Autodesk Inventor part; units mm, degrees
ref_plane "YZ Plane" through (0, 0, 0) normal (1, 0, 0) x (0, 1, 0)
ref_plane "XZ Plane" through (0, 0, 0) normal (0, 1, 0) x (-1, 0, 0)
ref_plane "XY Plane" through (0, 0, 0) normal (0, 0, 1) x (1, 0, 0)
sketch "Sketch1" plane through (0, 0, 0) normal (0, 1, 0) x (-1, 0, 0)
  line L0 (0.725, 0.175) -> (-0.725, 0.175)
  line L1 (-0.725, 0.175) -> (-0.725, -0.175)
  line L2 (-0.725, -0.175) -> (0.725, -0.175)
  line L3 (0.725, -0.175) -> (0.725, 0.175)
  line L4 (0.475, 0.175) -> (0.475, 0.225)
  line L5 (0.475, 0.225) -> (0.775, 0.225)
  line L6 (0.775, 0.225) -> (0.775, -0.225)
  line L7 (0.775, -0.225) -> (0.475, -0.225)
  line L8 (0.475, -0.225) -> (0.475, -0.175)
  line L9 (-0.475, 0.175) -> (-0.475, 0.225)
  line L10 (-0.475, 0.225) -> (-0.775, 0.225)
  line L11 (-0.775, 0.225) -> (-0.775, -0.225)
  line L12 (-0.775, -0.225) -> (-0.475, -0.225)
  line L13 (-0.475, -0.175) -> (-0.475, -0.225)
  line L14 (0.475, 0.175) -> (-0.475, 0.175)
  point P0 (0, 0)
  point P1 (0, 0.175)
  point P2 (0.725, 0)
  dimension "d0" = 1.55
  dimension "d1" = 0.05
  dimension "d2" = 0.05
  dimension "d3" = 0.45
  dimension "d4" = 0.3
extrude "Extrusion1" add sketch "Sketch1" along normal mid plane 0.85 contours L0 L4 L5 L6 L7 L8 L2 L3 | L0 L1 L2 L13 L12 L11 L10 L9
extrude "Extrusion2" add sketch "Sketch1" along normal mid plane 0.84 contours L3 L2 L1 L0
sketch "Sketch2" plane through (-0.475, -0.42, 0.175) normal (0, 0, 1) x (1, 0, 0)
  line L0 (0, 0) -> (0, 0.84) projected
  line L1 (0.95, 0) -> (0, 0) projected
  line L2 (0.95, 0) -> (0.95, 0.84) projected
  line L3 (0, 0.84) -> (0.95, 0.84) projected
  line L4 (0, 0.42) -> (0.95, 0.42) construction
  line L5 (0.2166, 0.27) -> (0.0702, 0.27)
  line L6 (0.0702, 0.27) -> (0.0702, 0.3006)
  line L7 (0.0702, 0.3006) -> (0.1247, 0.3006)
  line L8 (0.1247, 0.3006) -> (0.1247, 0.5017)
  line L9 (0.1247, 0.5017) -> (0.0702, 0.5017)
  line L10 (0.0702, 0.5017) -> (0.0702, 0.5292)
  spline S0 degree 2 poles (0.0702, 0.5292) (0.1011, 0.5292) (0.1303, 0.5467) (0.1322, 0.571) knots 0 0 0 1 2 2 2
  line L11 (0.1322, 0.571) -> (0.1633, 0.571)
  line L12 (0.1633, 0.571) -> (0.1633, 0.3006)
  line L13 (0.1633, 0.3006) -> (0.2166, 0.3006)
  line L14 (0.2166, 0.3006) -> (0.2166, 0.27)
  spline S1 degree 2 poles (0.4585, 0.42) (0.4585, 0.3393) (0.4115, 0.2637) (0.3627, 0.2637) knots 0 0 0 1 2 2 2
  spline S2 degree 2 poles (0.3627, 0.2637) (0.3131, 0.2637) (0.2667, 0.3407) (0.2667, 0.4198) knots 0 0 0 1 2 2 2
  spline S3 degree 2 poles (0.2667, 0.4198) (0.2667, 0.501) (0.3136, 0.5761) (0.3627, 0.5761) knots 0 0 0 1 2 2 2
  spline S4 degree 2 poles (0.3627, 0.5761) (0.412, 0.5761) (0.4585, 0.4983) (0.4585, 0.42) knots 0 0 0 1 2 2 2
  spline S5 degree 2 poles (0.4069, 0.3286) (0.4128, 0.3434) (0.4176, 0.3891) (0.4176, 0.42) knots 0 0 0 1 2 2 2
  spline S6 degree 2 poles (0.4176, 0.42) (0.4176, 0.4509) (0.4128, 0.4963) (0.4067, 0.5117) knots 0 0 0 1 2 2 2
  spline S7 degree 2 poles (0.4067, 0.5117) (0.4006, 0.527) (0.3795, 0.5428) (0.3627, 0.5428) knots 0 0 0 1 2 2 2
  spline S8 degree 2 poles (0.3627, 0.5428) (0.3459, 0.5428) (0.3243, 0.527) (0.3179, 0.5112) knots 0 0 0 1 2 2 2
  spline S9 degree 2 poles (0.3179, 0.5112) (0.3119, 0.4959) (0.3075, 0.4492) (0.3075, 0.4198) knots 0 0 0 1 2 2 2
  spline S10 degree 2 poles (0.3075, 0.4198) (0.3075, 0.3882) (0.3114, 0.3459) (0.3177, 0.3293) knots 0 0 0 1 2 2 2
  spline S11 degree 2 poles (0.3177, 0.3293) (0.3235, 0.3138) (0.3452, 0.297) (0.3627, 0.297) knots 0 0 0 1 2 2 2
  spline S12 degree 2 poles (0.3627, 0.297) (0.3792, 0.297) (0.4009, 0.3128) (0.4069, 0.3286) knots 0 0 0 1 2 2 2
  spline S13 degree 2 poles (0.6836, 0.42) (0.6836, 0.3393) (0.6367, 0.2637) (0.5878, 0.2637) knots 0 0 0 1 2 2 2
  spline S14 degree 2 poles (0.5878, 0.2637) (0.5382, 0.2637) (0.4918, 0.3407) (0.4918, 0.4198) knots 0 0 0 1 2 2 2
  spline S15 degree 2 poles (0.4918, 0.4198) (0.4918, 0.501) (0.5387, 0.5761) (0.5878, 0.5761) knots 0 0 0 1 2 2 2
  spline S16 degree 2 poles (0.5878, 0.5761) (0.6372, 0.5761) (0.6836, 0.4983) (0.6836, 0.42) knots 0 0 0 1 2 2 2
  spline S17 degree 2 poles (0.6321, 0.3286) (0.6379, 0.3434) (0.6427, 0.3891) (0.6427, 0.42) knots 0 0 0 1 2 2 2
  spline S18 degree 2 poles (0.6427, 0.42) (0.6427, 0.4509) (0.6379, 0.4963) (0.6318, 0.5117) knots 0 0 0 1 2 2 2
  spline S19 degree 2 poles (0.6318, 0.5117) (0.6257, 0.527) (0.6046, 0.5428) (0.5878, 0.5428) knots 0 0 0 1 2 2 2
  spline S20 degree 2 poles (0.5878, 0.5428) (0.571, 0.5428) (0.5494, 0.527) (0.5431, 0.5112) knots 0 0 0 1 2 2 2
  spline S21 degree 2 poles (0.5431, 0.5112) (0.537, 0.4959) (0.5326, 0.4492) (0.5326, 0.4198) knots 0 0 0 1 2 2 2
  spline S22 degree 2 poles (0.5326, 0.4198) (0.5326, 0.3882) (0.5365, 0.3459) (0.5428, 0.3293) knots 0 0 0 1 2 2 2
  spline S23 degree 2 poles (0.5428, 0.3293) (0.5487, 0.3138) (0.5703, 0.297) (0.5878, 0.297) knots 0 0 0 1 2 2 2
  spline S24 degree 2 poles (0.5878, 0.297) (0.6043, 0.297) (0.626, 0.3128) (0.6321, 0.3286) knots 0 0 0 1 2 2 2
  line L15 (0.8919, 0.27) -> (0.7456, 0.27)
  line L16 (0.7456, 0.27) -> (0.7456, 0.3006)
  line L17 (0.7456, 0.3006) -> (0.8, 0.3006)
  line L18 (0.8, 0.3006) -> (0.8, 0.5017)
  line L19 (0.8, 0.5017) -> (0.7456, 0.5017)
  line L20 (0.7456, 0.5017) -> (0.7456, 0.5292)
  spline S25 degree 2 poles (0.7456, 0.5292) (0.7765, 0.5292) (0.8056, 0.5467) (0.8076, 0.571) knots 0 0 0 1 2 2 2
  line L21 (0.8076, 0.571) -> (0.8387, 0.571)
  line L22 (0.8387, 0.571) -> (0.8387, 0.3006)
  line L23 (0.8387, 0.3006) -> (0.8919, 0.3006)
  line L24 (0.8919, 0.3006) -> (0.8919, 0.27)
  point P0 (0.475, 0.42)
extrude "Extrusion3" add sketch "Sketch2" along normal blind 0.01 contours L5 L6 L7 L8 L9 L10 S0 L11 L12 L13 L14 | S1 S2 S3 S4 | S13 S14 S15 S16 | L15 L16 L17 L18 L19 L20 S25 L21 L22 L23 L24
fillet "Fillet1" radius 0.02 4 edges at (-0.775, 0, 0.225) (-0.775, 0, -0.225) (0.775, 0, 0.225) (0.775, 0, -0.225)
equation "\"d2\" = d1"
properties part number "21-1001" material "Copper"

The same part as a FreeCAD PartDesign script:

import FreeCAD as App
import Part
import Sketcher

V = App.Vector
Q = App.Units.Quantity


def edges_at(feature, points):
    """Names of the edges that pass closest to the given points."""
    edges = feature.Shape.Edges
    near = lambda p: min(range(len(edges)), key=lambda i: edges[i].distToShape(Part.Vertex(*p))[0])
    return sorted({f"Edge{near(p) + 1}" for p in points})


def add_polygon(sketch, points):
    """Adds a closed chain of lines whose ends are joined by coincident constraints."""
    first, n = sketch.GeometryCount, len(points)
    for a, b in zip(points, points[1:] + points[:1]):
        sketch.addGeometry(Part.LineSegment(App.Vector(*a, 0), App.Vector(*b, 0)), False)
    for i in range(n):
        sketch.addConstraint(Sketcher.Constraint("Coincident", first + i, 2, first + (i + 1) % n, 1))

doc = App.newDocument("Part")
body = doc.addObject("PartDesign::Body", "Body")
body.AllowCompound = True

sketch1 = body.newObject("Sketcher::SketchObject", "Sketch")
sketch1.AttachmentSupport = (doc.getObject("XZ_Plane"), [""])
sketch1.MapMode = "FlatFace"
add_polygon(sketch1, [(-0.47, 0.17), (-0.72, 0.17), (-0.72, -0.17), (-0.47, -0.17), (-0.47, -0.23), (-0.78, -0.23), (-0.78, 0.23), (-0.47, 0.23)])
add_polygon(sketch1, [(0.72, 0.17), (0.47, 0.17), (0.47, 0.23), (0.78, 0.23), (0.78, -0.23), (0.47, -0.23), (0.47, -0.17), (0.72, -0.17)])
sketch1.addConstraint(Sketcher.Constraint("Horizontal", 0))
sketch1.addConstraint(Sketcher.Constraint("Vertical", 1))
sketch1.addConstraint(Sketcher.Constraint("Horizontal", 2))
sketch1.addConstraint(Sketcher.Constraint("Vertical", 3))
sketch1.addConstraint(Sketcher.Constraint("Horizontal", 4))
sketch1.addConstraint(Sketcher.Constraint("Vertical", 5))
sketch1.addConstraint(Sketcher.Constraint("Horizontal", 6))
sketch1.addConstraint(Sketcher.Constraint("Vertical", 7))
sketch1.addConstraint(Sketcher.Constraint("Horizontal", 8))
sketch1.addConstraint(Sketcher.Constraint("Vertical", 9))
sketch1.addConstraint(Sketcher.Constraint("Horizontal", 10))
sketch1.addConstraint(Sketcher.Constraint("Vertical", 11))
sketch1.addConstraint(Sketcher.Constraint("Horizontal", 12))
sketch1.addConstraint(Sketcher.Constraint("Vertical", 13))
sketch1.addConstraint(Sketcher.Constraint("Horizontal", 14))
sketch1.addConstraint(Sketcher.Constraint("Vertical", 15))
sketch1.addConstraint(Sketcher.Constraint("Symmetric", 2, 2, 8, 2, -1, 1))
sketch1.addConstraint(Sketcher.Constraint("Symmetric", 4, 2, 10, 2, -1, 1))
sketch1.addConstraint(Sketcher.Constraint("Symmetric", 6, 2, 12, 2, -1, 1))
sketch1.addConstraint(Sketcher.Constraint("Symmetric", 0, 2, 14, 2, -1, 1))
sketch1.addConstraint(Sketcher.Constraint("Symmetric", 7, 2, 8, 2, -2))
sketch1.addConstraint(Sketcher.Constraint("Horizontal", 6, 2, 9, 2))
sketch1.addConstraint(Sketcher.Constraint("DistanceX", 4, 2, 4, 1, Q("0.3 mm")))
sketch1.addConstraint(Sketcher.Constraint("DistanceY", 3, 2, 3, 1, Q("0.05 mm")))
sketch1.addConstraint(Sketcher.Constraint("DistanceY", 5, 1, 5, 2, Q("0.45 mm")))
sketch1.addConstraint(Sketcher.Constraint("DistanceX", 4, 2, 1, 2, Q("0.05 mm")))
sketch1.addConstraint(Sketcher.Constraint("DistanceX", 0, 2, 8, 2, Q("1.2 mm")))
pad1 = body.newObject("PartDesign::Pad", "Pad")
pad1.Profile = sketch1
pad1.Length = 0.85
pad1.Midplane = True

sketch2 = body.newObject("Sketcher::SketchObject", "Sketch001")
sketch2.AttachmentSupport = (doc.getObject("XZ_Plane"), [""])
sketch2.MapMode = "FlatFace"
add_polygon(sketch2, [(-0.72, -0.17), (-0.72, 0.17), (0.72, 0.17), (0.72, -0.17)])
sketch2.addConstraint(Sketcher.Constraint("Vertical", 0))
sketch2.addConstraint(Sketcher.Constraint("Horizontal", 1))
sketch2.addConstraint(Sketcher.Constraint("Vertical", 2))
sketch2.addConstraint(Sketcher.Constraint("Horizontal", 3))
sketch2.addConstraint(Sketcher.Constraint("Symmetric", 0, 2, 2, 2, -1, 1))
sketch2.addConstraint(Sketcher.Constraint("DistanceX", 1, 1, 1, 2, Q("1.45 mm")))
sketch2.addConstraint(Sketcher.Constraint("DistanceY", 0, 1, 0, 2, Q("0.35 mm")))
pad2 = body.newObject("PartDesign::Pad", "Pad001")
pad2.Profile = sketch2
pad2.Length = 0.84
pad2.Midplane = True

sketch3 = body.newObject("Sketcher::SketchObject", "Sketch002")
sketch3.AttachmentSupport = (doc.getObject("XY_Plane"), [""])
sketch3.MapMode = "FlatFace"
sketch3.AttachmentOffset = App.Placement(V(0, 0, 0.175), App.Rotation())
sketch3.addGeometry(Part.LineSegment(V(-0.4048, -0.15, 0), V(-0.2584, -0.15, 0)), False)
sketch3.addGeometry(Part.LineSegment(V(-0.2584, -0.15, 0), V(-0.2584, -0.1194, 0)), False)
sketch3.addGeometry(Part.LineSegment(V(-0.2584, -0.1194, 0), V(-0.3117, -0.1194, 0)), False)
sketch3.addGeometry(Part.LineSegment(V(-0.3117, -0.1194, 0), V(-0.3117, 0.151, 0)), False)
sketch3.addGeometry(Part.LineSegment(V(-0.3117, 0.151, 0), V(-0.3428, 0.151, 0)), False)
sketch3.addGeometry(Part.BSplineCurve([V(-0.4048, 0.1092, 0), V(-0.3739, 0.1092, 0), V(-0.3447, 0.1267, 0), V(-0.3428, 0.151, 0)], [3, 1, 3], [0, 1, 2], False, 2, [1, 1, 1, 1], False), False)
sketch3.addGeometry(Part.LineSegment(V(-0.4048, 0.1092, 0), V(-0.4048, 0.0817, 0)), False)
sketch3.addGeometry(Part.LineSegment(V(-0.4048, 0.0817, 0), V(-0.3503, 0.0817, 0)), False)
sketch3.addGeometry(Part.LineSegment(V(-0.3503, 0.0817, 0), V(-0.3503, -0.1194, 0)), False)
sketch3.addGeometry(Part.LineSegment(V(-0.3503, -0.1194, 0), V(-0.4048, -0.1194, 0)), False)
sketch3.addGeometry(Part.LineSegment(V(-0.4048, -0.1194, 0), V(-0.4048, -0.15, 0)), False)
sketch3.addGeometry(Part.BSplineCurve([V(-0.0165, 0, 0), V(-0.0165, -0.0807, 0), V(-0.0635, -0.1563, 0), V(-0.1123, -0.1563, 0)], [3, 1, 3], [0, 1, 2], False, 2, [1, 1, 1, 1], False), False)
sketch3.addGeometry(Part.BSplineCurve([V(-0.1123, 0.1561, 0), V(-0.063, 0.1561, 0), V(-0.0165, 0.0783, 0), V(-0.0165, 0, 0)], [3, 1, 3], [0, 1, 2], False, 2, [1, 1, 1, 1], False), False)
sketch3.addGeometry(Part.BSplineCurve([V(-0.2083, -0.0002, 0), V(-0.2083, 0.081, 0), V(-0.1614, 0.1561, 0), V(-0.1123, 0.1561, 0)], [3, 1, 3], [0, 1, 2], False, 2, [1, 1, 1, 1], False), False)
sketch3.addGeometry(Part.BSplineCurve([V(-0.1123, -0.1563, 0), V(-0.1619, -0.1563, 0), V(-0.2083, -0.0793, 0), V(-0.2083, -0.0002, 0)], [3, 1, 3], [0, 1, 2], False, 2, [1, 1, 1, 1], False), False)
sketch3.addGeometry(Part.BSplineCurve([V(-0.0681, -0.0914, 0), V(-0.0622, -0.0766, 0), V(-0.0574, -0.0309, 0), V(-0.0574, 0, 0)], [3, 1, 3], [0, 1, 2], False, 2, [1, 1, 1, 1], False), False)
sketch3.addGeometry(Part.BSplineCurve([V(-0.1123, -0.123, 0), V(-0.0958, -0.123, 0), V(-0.0741, -0.1072, 0), V(-0.0681, -0.0914, 0)], [3, 1, 3], [0, 1, 2], False, 2, [1, 1, 1, 1], False), False)
sketch3.addGeometry(Part.BSplineCurve([V(-0.1573, -0.0907, 0), V(-0.1515, -0.1062, 0), V(-0.1298, -0.123, 0), V(-0.1123, -0.123, 0)], [3, 1, 3], [0, 1, 2], False, 2, [1, 1, 1, 1], False), False)
sketch3.addGeometry(Part.BSplineCurve([V(-0.1675, -0.0002, 0), V(-0.1675, -0.0318, 0), V(-0.1636, -0.0741, 0), V(-0.1573, -0.0907, 0)], [3, 1, 3], [0, 1, 2], False, 2, [1, 1, 1, 1], False), False)
sketch3.addGeometry(Part.BSplineCurve([V(-0.1571, 0.0912, 0), V(-0.1631, 0.0759, 0), V(-0.1675, 0.0292, 0), V(-0.1675, -0.0002, 0)], [3, 1, 3], [0, 1, 2], False, 2, [1, 1, 1, 1], False), False)
sketch3.addGeometry(Part.BSplineCurve([V(-0.1123, 0.1228, 0), V(-0.1291, 0.1228, 0), V(-0.1507, 0.107, 0), V(-0.1571, 0.0912, 0)], [3, 1, 3], [0, 1, 2], False, 2, [1, 1, 1, 1], False), False)
sketch3.addGeometry(Part.BSplineCurve([V(-0.0683, 0.0917, 0), V(-0.0744, 0.107, 0), V(-0.0955, 0.1228, 0), V(-0.1123, 0.1228, 0)], [3, 1, 3], [0, 1, 2], False, 2, [1, 1, 1, 1], False), False)
sketch3.addGeometry(Part.BSplineCurve([V(-0.0574, 0, 0), V(-0.0574, 0.0309, 0), V(-0.0622, 0.0763, 0), V(-0.0683, 0.0917, 0)], [3, 1, 3], [0, 1, 2], False, 2, [1, 1, 1, 1], False), False)
sketch3.addGeometry(Part.BSplineCurve([V(0.2086, 0, 0), V(0.2086, -0.0807, 0), V(0.1617, -0.1563, 0), V(0.1128, -0.1563, 0)], [3, 1, 3], [0, 1, 2], False, 2, [1, 1, 1, 1], False), False)
sketch3.addGeometry(Part.BSplineCurve([V(0.1128, 0.1561, 0), V(0.1622, 0.1561, 0), V(0.2086, 0.0783, 0), V(0.2086, 0, 0)], [3, 1, 3], [0, 1, 2], False, 2, [1, 1, 1, 1], False), False)
sketch3.addGeometry(Part.BSplineCurve([V(0.0168, -0.0002, 0), V(0.0168, 0.081, 0), V(0.0637, 0.1561, 0), V(0.1128, 0.1561, 0)], [3, 1, 3], [0, 1, 2], False, 2, [1, 1, 1, 1], False), False)
sketch3.addGeometry(Part.BSplineCurve([V(0.1128, -0.1563, 0), V(0.0632, -0.1563, 0), V(0.0168, -0.0793, 0), V(0.0168, -0.0002, 0)], [3, 1, 3], [0, 1, 2], False, 2, [1, 1, 1, 1], False), False)
sketch3.addGeometry(Part.BSplineCurve([V(0.1571, -0.0914, 0), V(0.1629, -0.0766, 0), V(0.1677, -0.0309, 0), V(0.1677, 0, 0)], [3, 1, 3], [0, 1, 2], False, 2, [1, 1, 1, 1], False), False)
sketch3.addGeometry(Part.BSplineCurve([V(0.1128, -0.123, 0), V(0.1293, -0.123, 0), V(0.151, -0.1072, 0), V(0.1571, -0.0914, 0)], [3, 1, 3], [0, 1, 2], False, 2, [1, 1, 1, 1], False), False)
sketch3.addGeometry(Part.BSplineCurve([V(0.0678, -0.0907, 0), V(0.0737, -0.1062, 0), V(0.0953, -0.123, 0), V(0.1128, -0.123, 0)], [3, 1, 3], [0, 1, 2], False, 2, [1, 1, 1, 1], False), False)
sketch3.addGeometry(Part.BSplineCurve([V(0.0576, -0.0002, 0), V(0.0576, -0.0318, 0), V(0.0615, -0.0741, 0), V(0.0678, -0.0907, 0)], [3, 1, 3], [0, 1, 2], False, 2, [1, 1, 1, 1], False), False)
sketch3.addGeometry(Part.BSplineCurve([V(0.0681, 0.0912, 0), V(0.062, 0.0759, 0), V(0.0576, 0.0292, 0), V(0.0576, -0.0002, 0)], [3, 1, 3], [0, 1, 2], False, 2, [1, 1, 1, 1], False), False)
sketch3.addGeometry(Part.BSplineCurve([V(0.1128, 0.1228, 0), V(0.096, 0.1228, 0), V(0.0744, 0.107, 0), V(0.0681, 0.0912, 0)], [3, 1, 3], [0, 1, 2], False, 2, [1, 1, 1, 1], False), False)
sketch3.addGeometry(Part.BSplineCurve([V(0.1568, 0.0917, 0), V(0.1507, 0.107, 0), V(0.1296, 0.1228, 0), V(0.1128, 0.1228, 0)], [3, 1, 3], [0, 1, 2], False, 2, [1, 1, 1, 1], False), False)
sketch3.addGeometry(Part.BSplineCurve([V(0.1677, 0, 0), V(0.1677, 0.0309, 0), V(0.1629, 0.0763, 0), V(0.1568, 0.0917, 0)], [3, 1, 3], [0, 1, 2], False, 2, [1, 1, 1, 1], False), False)
sketch3.addGeometry(Part.LineSegment(V(0.2706, -0.15, 0), V(0.4169, -0.15, 0)), False)
sketch3.addGeometry(Part.LineSegment(V(0.4169, -0.15, 0), V(0.4169, -0.1194, 0)), False)
sketch3.addGeometry(Part.LineSegment(V(0.4169, -0.1194, 0), V(0.3637, -0.1194, 0)), False)
sketch3.addGeometry(Part.LineSegment(V(0.3637, -0.1194, 0), V(0.3637, 0.151, 0)), False)
sketch3.addGeometry(Part.LineSegment(V(0.3637, 0.151, 0), V(0.3326, 0.151, 0)), False)
sketch3.addGeometry(Part.BSplineCurve([V(0.2706, 0.1092, 0), V(0.3015, 0.1092, 0), V(0.3306, 0.1267, 0), V(0.3326, 0.151, 0)], [3, 1, 3], [0, 1, 2], False, 2, [1, 1, 1, 1], False), False)
sketch3.addGeometry(Part.LineSegment(V(0.2706, 0.1092, 0), V(0.2706, 0.0817, 0)), False)
sketch3.addGeometry(Part.LineSegment(V(0.2706, 0.0817, 0), V(0.325, 0.0817, 0)), False)
sketch3.addGeometry(Part.LineSegment(V(0.325, 0.0817, 0), V(0.325, -0.1194, 0)), False)
sketch3.addGeometry(Part.LineSegment(V(0.325, -0.1194, 0), V(0.2706, -0.1194, 0)), False)
sketch3.addGeometry(Part.LineSegment(V(0.2706, -0.1194, 0), V(0.2706, -0.15, 0)), False)
sketch3.addConstraint(Sketcher.Constraint("Block", 5))
sketch3.addConstraint(Sketcher.Constraint("Block", 11))
sketch3.addConstraint(Sketcher.Constraint("Block", 12))
sketch3.addConstraint(Sketcher.Constraint("Block", 13))
sketch3.addConstraint(Sketcher.Constraint("Block", 14))
sketch3.addConstraint(Sketcher.Constraint("Block", 15))
sketch3.addConstraint(Sketcher.Constraint("Block", 16))
sketch3.addConstraint(Sketcher.Constraint("Block", 17))
sketch3.addConstraint(Sketcher.Constraint("Block", 18))
sketch3.addConstraint(Sketcher.Constraint("Block", 19))
sketch3.addConstraint(Sketcher.Constraint("Block", 20))
sketch3.addConstraint(Sketcher.Constraint("Block", 21))
sketch3.addConstraint(Sketcher.Constraint("Block", 22))
sketch3.addConstraint(Sketcher.Constraint("Block", 23))
sketch3.addConstraint(Sketcher.Constraint("Block", 24))
sketch3.addConstraint(Sketcher.Constraint("Block", 25))
sketch3.addConstraint(Sketcher.Constraint("Block", 26))
sketch3.addConstraint(Sketcher.Constraint("Block", 27))
sketch3.addConstraint(Sketcher.Constraint("Block", 28))
sketch3.addConstraint(Sketcher.Constraint("Block", 29))
sketch3.addConstraint(Sketcher.Constraint("Block", 30))
sketch3.addConstraint(Sketcher.Constraint("Block", 31))
sketch3.addConstraint(Sketcher.Constraint("Block", 32))
sketch3.addConstraint(Sketcher.Constraint("Block", 33))
sketch3.addConstraint(Sketcher.Constraint("Block", 34))
sketch3.addConstraint(Sketcher.Constraint("Block", 40))
sketch3.addConstraint(Sketcher.Constraint("Coincident", 0, 2, 1, 1))
sketch3.addConstraint(Sketcher.Constraint("Coincident", 1, 2, 2, 1))
sketch3.addConstraint(Sketcher.Constraint("Coincident", 2, 2, 3, 1))
sketch3.addConstraint(Sketcher.Constraint("Coincident", 3, 2, 4, 1))
sketch3.addConstraint(Sketcher.Constraint("Coincident", 4, 2, 5, 2))
sketch3.addConstraint(Sketcher.Constraint("Coincident", 5, 1, 6, 1))
sketch3.addConstraint(Sketcher.Constraint("Coincident", 6, 2, 7, 1))
sketch3.addConstraint(Sketcher.Constraint("Coincident", 7, 2, 8, 1))
sketch3.addConstraint(Sketcher.Constraint("Coincident", 8, 2, 9, 1))
sketch3.addConstraint(Sketcher.Constraint("Coincident", 9, 2, 10, 1))
sketch3.addConstraint(Sketcher.Constraint("Coincident", 10, 2, 0, 1))
sketch3.addConstraint(Sketcher.Constraint("Coincident", 35, 2, 36, 1))
sketch3.addConstraint(Sketcher.Constraint("Coincident", 36, 2, 37, 1))
sketch3.addConstraint(Sketcher.Constraint("Coincident", 37, 2, 38, 1))
sketch3.addConstraint(Sketcher.Constraint("Coincident", 38, 2, 39, 1))
sketch3.addConstraint(Sketcher.Constraint("Coincident", 39, 2, 40, 2))
sketch3.addConstraint(Sketcher.Constraint("Coincident", 40, 1, 41, 1))
sketch3.addConstraint(Sketcher.Constraint("Coincident", 41, 2, 42, 1))
sketch3.addConstraint(Sketcher.Constraint("Coincident", 42, 2, 43, 1))
sketch3.addConstraint(Sketcher.Constraint("Coincident", 43, 2, 44, 1))
sketch3.addConstraint(Sketcher.Constraint("Coincident", 44, 2, 45, 1))
sketch3.addConstraint(Sketcher.Constraint("Coincident", 45, 2, 35, 1))
sketch3.addConstraint(Sketcher.Constraint("Horizontal", 0))
sketch3.addConstraint(Sketcher.Constraint("Vertical", 1))
sketch3.addConstraint(Sketcher.Constraint("Horizontal", 2))
sketch3.addConstraint(Sketcher.Constraint("Vertical", 3))
sketch3.addConstraint(Sketcher.Constraint("Horizontal", 4))
sketch3.addConstraint(Sketcher.Constraint("Vertical", 6))
sketch3.addConstraint(Sketcher.Constraint("Horizontal", 7))
sketch3.addConstraint(Sketcher.Constraint("Vertical", 8))
sketch3.addConstraint(Sketcher.Constraint("Horizontal", 9))
sketch3.addConstraint(Sketcher.Constraint("Vertical", 10))
sketch3.addConstraint(Sketcher.Constraint("Horizontal", 35))
sketch3.addConstraint(Sketcher.Constraint("Vertical", 36))
sketch3.addConstraint(Sketcher.Constraint("Horizontal", 37))
sketch3.addConstraint(Sketcher.Constraint("Vertical", 38))
sketch3.addConstraint(Sketcher.Constraint("Horizontal", 39))
sketch3.addConstraint(Sketcher.Constraint("Vertical", 41))
sketch3.addConstraint(Sketcher.Constraint("Horizontal", 42))
sketch3.addConstraint(Sketcher.Constraint("Vertical", 43))
sketch3.addConstraint(Sketcher.Constraint("Horizontal", 44))
sketch3.addConstraint(Sketcher.Constraint("Vertical", 45))
sketch3.addConstraint(Sketcher.Constraint("Horizontal", 2, 2, 8, 2))
sketch3.addConstraint(Sketcher.Constraint("Horizontal", 10, 2, 35, 2))
sketch3.addConstraint(Sketcher.Constraint("Horizontal", 9, 2, 36, 2))
sketch3.addConstraint(Sketcher.Constraint("Horizontal", 7, 2, 41, 2))
sketch3.addConstraint(Sketcher.Constraint("Horizontal", 37, 2, 43, 2))
sketch3.addConstraint(Sketcher.Constraint("Vertical", 6, 2, 9, 2))
sketch3.addConstraint(Sketcher.Constraint("Vertical", 41, 2, 44, 2))
sketch3.addConstraint(Sketcher.Constraint("Equal", 0, 35))
sketch3.addConstraint(Sketcher.Constraint("Equal", 2, 37))
sketch3.addConstraint(Sketcher.Constraint("Equal", 9, 42))
sketch3.addConstraint(Sketcher.Constraint("DistanceX", 4, 2, 4, 1, Q("0.031 mm")))
sketch3.addConstraint(Sketcher.Constraint("DistanceY", 8, 2, 8, 1, Q("0.201 mm")))
sketch3.addConstraint(Sketcher.Constraint("DistanceY", 0, 2, -1, 1, Q("0.15 mm")))
sketch3.addConstraint(Sketcher.Constraint("DistanceX", 0, 1, 0, 2, Q("0.1464 mm")))
sketch3.addConstraint(Sketcher.Constraint("DistanceX", 7, 1, 7, 2, Q("0.0545 mm")))
sketch3.addConstraint(Sketcher.Constraint("DistanceY", 1, 1, 1, 2, Q("0.0306 mm")))
pad3 = body.newObject("PartDesign::Pad", "Pad002")
pad3.Profile = sketch3
pad3.Length = 0.01
doc.recompute()

fillet = body.newObject("PartDesign::Fillet", "Fillet")
fillet.Base = (pad3, edges_at(pad3, [
    (-0.775, 0, 0.225),
    (-0.775, 0, -0.225),
    (0.775, 0, 0.225),
    (0.775, 0, -0.225),
]))
fillet.Radius = 0.02

doc.recompute()
